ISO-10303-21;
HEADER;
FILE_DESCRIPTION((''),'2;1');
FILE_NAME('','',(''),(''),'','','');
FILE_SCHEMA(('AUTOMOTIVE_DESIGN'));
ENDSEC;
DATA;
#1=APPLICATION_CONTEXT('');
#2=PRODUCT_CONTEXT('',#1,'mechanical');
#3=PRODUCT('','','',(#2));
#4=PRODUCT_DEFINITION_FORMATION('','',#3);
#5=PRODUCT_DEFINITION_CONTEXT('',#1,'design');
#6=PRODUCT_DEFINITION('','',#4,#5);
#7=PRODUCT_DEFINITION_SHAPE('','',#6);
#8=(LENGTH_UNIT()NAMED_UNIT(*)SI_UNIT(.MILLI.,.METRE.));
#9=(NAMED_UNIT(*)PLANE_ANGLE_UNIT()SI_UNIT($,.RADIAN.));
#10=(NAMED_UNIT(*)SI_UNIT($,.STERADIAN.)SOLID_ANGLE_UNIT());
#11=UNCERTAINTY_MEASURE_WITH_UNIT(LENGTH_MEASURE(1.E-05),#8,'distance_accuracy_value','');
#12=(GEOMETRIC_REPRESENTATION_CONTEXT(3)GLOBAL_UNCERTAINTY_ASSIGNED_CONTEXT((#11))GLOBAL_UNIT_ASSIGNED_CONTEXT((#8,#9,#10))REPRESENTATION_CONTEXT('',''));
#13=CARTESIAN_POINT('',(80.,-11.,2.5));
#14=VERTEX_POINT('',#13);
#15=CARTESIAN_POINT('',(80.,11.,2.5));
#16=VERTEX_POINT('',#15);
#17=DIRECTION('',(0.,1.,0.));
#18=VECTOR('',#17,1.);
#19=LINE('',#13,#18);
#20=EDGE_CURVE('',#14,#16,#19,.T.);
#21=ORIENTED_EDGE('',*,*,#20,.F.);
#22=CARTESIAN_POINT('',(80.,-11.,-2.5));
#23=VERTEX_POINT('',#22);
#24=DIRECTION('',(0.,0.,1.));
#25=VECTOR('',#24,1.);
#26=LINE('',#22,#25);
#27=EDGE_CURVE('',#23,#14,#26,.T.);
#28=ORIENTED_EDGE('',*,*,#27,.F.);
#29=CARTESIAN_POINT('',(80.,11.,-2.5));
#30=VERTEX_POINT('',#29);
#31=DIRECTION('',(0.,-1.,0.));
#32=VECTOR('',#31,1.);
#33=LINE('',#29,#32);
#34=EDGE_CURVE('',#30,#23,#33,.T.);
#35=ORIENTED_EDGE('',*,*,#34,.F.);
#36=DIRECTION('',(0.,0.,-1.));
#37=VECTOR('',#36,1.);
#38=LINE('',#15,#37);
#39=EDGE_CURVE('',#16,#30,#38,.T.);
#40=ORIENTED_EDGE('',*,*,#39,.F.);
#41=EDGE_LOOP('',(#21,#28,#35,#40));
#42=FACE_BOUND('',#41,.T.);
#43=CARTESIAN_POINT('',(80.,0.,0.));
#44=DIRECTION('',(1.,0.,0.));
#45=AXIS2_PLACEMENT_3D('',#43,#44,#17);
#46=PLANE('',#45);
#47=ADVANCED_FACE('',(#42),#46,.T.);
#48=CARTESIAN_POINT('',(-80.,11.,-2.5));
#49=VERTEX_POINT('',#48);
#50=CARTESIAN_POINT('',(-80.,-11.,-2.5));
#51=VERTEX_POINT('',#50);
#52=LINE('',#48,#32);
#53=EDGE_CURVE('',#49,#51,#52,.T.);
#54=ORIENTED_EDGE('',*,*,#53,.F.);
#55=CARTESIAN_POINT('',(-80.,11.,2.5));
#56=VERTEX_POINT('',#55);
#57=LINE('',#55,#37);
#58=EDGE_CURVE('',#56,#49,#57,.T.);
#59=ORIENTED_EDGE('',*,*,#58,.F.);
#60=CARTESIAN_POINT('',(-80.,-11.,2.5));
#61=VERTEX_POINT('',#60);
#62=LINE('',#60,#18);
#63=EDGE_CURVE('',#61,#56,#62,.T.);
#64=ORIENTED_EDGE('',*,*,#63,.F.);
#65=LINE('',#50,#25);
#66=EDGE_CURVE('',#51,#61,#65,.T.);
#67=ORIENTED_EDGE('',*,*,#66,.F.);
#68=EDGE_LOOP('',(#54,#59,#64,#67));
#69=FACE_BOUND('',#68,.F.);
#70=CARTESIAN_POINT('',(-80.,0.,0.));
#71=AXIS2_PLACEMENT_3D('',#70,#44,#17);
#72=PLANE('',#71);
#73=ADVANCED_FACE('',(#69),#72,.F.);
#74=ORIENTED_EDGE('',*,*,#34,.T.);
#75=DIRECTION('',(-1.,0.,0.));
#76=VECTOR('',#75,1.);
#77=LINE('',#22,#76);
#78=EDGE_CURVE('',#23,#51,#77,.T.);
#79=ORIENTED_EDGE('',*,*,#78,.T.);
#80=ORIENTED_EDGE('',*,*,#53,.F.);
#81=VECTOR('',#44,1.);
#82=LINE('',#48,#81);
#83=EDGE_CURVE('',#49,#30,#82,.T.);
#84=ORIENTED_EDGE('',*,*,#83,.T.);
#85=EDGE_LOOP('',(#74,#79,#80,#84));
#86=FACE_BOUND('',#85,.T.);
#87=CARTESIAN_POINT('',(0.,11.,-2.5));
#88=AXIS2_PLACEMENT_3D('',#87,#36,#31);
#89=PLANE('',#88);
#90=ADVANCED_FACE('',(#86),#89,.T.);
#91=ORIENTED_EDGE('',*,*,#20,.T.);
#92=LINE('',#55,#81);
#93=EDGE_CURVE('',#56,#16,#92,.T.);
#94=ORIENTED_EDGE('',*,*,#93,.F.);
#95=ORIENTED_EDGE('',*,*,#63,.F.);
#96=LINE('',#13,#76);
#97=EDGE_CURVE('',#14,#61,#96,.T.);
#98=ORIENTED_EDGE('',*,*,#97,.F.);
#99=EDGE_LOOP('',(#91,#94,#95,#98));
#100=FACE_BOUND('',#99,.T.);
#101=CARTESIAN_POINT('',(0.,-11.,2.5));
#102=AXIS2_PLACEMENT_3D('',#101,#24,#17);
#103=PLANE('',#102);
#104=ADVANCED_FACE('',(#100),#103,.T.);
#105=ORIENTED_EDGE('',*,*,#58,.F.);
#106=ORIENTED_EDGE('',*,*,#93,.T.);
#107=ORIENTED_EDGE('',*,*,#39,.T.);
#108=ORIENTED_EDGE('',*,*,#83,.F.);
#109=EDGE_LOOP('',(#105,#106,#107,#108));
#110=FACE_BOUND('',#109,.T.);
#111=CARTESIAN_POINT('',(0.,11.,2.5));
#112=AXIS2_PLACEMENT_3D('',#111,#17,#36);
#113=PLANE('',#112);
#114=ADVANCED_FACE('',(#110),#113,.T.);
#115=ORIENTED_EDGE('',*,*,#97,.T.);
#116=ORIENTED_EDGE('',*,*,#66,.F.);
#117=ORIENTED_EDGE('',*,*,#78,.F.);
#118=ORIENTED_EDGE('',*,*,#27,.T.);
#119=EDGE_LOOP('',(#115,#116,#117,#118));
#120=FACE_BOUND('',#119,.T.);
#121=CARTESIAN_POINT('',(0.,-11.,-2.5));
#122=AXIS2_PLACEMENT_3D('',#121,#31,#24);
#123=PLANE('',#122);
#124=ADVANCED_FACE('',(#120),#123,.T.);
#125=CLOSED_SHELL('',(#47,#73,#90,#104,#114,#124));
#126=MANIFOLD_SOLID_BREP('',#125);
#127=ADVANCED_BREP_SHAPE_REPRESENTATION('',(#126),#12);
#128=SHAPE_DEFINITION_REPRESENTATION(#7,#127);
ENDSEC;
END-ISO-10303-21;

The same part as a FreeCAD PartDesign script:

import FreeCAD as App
import Part
import Sketcher
Q = App.Units.Quantity


def add_polygon(sketch, points):
    """Adds a closed chain of lines whose ends are joined by coincident constraints."""
    first, n = sketch.GeometryCount, len(points)
    for a, b in zip(points, points[1:] + points[:1]):
        sketch.addGeometry(Part.LineSegment(App.Vector(*a, 0), App.Vector(*b, 0)), False)
    for i in range(n):
        sketch.addConstraint(Sketcher.Constraint("Coincident", first + i, 2, first + (i + 1) % n, 1))

doc = App.newDocument("Part")
body = doc.addObject("PartDesign::Body", "Body")

# Sketch on YZ plane
sketch1 = body.newObject("Sketcher::SketchObject", "Sketch")
sketch1.AttachmentSupport = (doc.getObject("YZ_Plane"), [""])
sketch1.MapMode = "FlatFace"
add_polygon(sketch1, [(-11, -2), (11, -2), (11, 2), (-11, 2)])  # lines 0-3
sketch1.addConstraint(Sketcher.Constraint("Horizontal", 0))
sketch1.addConstraint(Sketcher.Constraint("Vertical", 1))
sketch1.addConstraint(Sketcher.Constraint("Horizontal", 2))
sketch1.addConstraint(Sketcher.Constraint("Vertical", 3))
sketch1.addConstraint(Sketcher.Constraint("Symmetric", 0, 2, 2, 2, -1, 1))
sketch1.addConstraint(Sketcher.Constraint("DistanceX", 0, 1, 0, 2, Q("22 mm")))
sketch1.addConstraint(Sketcher.Constraint("DistanceY", 1, 1, 1, 2, Q("5 mm")))
pad1 = body.newObject("PartDesign::Pad", "Pad")
pad1.Profile = sketch1
pad1.Length = 160
pad1.Midplane = True

doc.recompute()
